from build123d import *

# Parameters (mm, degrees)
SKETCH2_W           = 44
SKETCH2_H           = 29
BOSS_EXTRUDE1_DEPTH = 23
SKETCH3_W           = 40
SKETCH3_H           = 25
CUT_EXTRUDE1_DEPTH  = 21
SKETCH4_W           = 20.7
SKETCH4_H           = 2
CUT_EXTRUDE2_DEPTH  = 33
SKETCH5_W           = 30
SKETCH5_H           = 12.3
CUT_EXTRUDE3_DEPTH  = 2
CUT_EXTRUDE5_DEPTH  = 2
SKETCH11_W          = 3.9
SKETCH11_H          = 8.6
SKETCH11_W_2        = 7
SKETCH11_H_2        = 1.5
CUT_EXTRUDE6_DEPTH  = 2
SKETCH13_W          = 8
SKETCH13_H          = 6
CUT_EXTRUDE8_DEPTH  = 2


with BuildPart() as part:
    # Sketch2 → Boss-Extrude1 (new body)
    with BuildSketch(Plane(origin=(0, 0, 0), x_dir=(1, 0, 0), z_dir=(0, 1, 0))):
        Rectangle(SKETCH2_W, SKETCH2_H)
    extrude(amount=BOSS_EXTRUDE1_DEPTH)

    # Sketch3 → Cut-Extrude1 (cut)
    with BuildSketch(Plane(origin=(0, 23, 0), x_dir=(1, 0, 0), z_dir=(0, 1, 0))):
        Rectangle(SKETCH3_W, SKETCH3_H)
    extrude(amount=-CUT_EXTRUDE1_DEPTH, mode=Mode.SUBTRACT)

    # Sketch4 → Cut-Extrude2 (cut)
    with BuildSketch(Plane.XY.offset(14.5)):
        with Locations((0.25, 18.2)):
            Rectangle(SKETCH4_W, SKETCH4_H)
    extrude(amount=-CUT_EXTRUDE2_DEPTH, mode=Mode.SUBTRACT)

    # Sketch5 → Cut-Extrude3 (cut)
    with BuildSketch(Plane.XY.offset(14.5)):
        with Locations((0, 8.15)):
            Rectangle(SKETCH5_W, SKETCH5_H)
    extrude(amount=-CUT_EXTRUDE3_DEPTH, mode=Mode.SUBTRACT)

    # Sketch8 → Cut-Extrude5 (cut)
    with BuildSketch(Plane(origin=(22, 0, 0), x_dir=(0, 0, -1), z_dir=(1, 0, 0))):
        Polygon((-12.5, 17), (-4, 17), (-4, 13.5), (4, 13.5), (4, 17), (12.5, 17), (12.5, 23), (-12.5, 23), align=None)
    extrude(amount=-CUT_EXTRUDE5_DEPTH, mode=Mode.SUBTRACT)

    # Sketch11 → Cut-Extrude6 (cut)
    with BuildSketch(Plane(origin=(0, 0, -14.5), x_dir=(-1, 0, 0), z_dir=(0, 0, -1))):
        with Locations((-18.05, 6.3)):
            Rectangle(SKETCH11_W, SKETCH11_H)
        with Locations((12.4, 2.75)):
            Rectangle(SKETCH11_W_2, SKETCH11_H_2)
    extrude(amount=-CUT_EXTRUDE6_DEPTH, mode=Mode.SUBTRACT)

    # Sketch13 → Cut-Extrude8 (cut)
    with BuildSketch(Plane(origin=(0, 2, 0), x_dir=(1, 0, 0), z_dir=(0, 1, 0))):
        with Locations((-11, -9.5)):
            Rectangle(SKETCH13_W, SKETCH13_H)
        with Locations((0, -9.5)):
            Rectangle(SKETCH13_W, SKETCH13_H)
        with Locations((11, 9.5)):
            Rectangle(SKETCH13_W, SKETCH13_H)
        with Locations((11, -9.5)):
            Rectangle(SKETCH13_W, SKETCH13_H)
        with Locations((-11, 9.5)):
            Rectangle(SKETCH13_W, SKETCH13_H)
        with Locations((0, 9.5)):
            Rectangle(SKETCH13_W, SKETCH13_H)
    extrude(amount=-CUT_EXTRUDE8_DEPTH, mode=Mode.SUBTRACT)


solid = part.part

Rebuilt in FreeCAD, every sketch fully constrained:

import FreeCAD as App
import Part
import Sketcher

V = App.Vector


def add_polygon(sketch, points):
    """Adds a closed chain of lines whose ends are joined by coincident constraints."""
    first, n = sketch.GeometryCount, len(points)
    for a, b in zip(points, points[1:] + points[:1]):
        sketch.addGeometry(Part.LineSegment(App.Vector(*a, 0), App.Vector(*b, 0)), False)
    for i in range(n):
        sketch.addConstraint(Sketcher.Constraint("Coincident", first + i, 2, first + (i + 1) % n, 1))

doc = App.newDocument("Part")
body = doc.addObject("PartDesign::Body", "Body")

sketch1 = body.newObject("Sketcher::SketchObject", "Sketch")
sketch1.AttachmentSupport = (doc.getObject("XZ_Plane"), [""])
sketch1.MapMode = "FlatFace"
add_polygon(sketch1, [(-22, -14), (-22, 14), (22, 14), (22, -14)])
sketch1.addConstraint(Sketcher.Constraint("Vertical", 0))
sketch1.addConstraint(Sketcher.Constraint("Horizontal", 1))
sketch1.addConstraint(Sketcher.Constraint("Vertical", 2))
sketch1.addConstraint(Sketcher.Constraint("Horizontal", 3))
sketch1.addConstraint(Sketcher.Constraint("Symmetric", 0, 2, 2, 2, -1, 1))
sketch1.addConstraint(Sketcher.Constraint("DistanceX", 1, 1, 1, 2, 44.0))
sketch1.addConstraint(Sketcher.Constraint("DistanceY", 0, 1, 0, 2, 29.0))
pad1 = body.newObject("PartDesign::Pad", "Pad")
pad1.Profile = sketch1
pad1.Length = 23
pad1.Reversed = True

sketch2 = body.newObject("Sketcher::SketchObject", "Sketch001")
sketch2.AttachmentSupport = (doc.getObject("XZ_Plane"), [""])
sketch2.MapMode = "FlatFace"
sketch2.AttachmentOffset = App.Placement(V(0, 0, -23), App.Rotation())
add_polygon(sketch2, [(-20, -12), (-20, 12), (20, 12), (20, -12)])
sketch2.addConstraint(Sketcher.Constraint("Vertical", 0))
sketch2.addConstraint(Sketcher.Constraint("Horizontal", 1))
sketch2.addConstraint(Sketcher.Constraint("Vertical", 2))
sketch2.addConstraint(Sketcher.Constraint("Horizontal", 3))
sketch2.addConstraint(Sketcher.Constraint("Symmetric", 0, 2, 2, 2, -1, 1))
sketch2.addConstraint(Sketcher.Constraint("DistanceX", 1, 1, 1, 2, 40.0))
sketch2.addConstraint(Sketcher.Constraint("DistanceY", 0, 1, 0, 2, 25.0))
pocket1 = body.newObject("PartDesign::Pocket", "Pocket")
pocket1.Profile = sketch2
pocket1.Length = 21
pocket1.Reversed = True

sketch3 = body.newObject("Sketcher::SketchObject", "Sketch002")
sketch3.AttachmentSupport = (doc.getObject("XY_Plane"), [""])
sketch3.MapMode = "FlatFace"
sketch3.AttachmentOffset = App.Placement(V(0, 0, 14.5), App.Rotation())
add_polygon(sketch3, [(-10.1, 19.2), (-10.1, 17.2), (10.6, 17.2), (10.6, 19.2)])
sketch3.addConstraint(Sketcher.Constraint("Vertical", 0))
sketch3.addConstraint(Sketcher.Constraint("Horizontal", 1))
sketch3.addConstraint(Sketcher.Constraint("Vertical", 2))
sketch3.addConstraint(Sketcher.Constraint("Horizontal", 3))
sketch3.addConstraint(Sketcher.Constraint("DistanceY", 0, 2, 0, 1, 2.0))
sketch3.addConstraint(Sketcher.Constraint("DistanceX", 1, 1, 1, 2, 20.7))
sketch3.addConstraint(Sketcher.Constraint("DistanceX", 0, 2, -1, 1, 10.1))
sketch3.addConstraint(Sketcher.Constraint("DistanceY", -1, 1, 0, 2, 17.2))
pocket2 = body.newObject("PartDesign::Pocket", "Pocket001")
pocket2.Profile = sketch3
pocket2.Length = 33

sketch4 = body.newObject("Sketcher::SketchObject", "Sketch003")
sketch4.AttachmentSupport = (doc.getObject("XY_Plane"), [""])
sketch4.MapMode = "FlatFace"
sketch4.AttachmentOffset = App.Placement(V(0, 0, 14.5), App.Rotation())
add_polygon(sketch4, [(-15, 14), (-15, 2), (15, 2), (15, 14)])
sketch4.addConstraint(Sketcher.Constraint("Vertical", 0))
sketch4.addConstraint(Sketcher.Constraint("Horizontal", 1))
sketch4.addConstraint(Sketcher.Constraint("Vertical", 2))
sketch4.addConstraint(Sketcher.Constraint("Horizontal", 3))
sketch4.addConstraint(Sketcher.Constraint("DistanceX", 1, 1, 1, 2, 30.0))
sketch4.addConstraint(Sketcher.Constraint("DistanceY", 0, 2, 0, 1, 12.3))
sketch4.addConstraint(Sketcher.Constraint("DistanceX", 0, 2, -1, 1, 15.0))
sketch4.addConstraint(Sketcher.Constraint("DistanceY", -1, 1, 0, 2, 2.0))
pocket3 = body.newObject("PartDesign::Pocket", "Pocket002")
pocket3.Profile = sketch4
pocket3.Length = 2

sketch5 = body.newObject("Sketcher::SketchObject", "Sketch004")
sketch5.AttachmentSupport = (doc.getObject("YZ_Plane"), [""])
sketch5.MapMode = "FlatFace"
sketch5.AttachmentOffset = App.Placement(V(0, 0, 22), App.Rotation())
add_polygon(sketch5, [(17, 12.5), (17, 4), (13.5, 4), (13.5, -4), (17, -4), (17, -12.5), (23, -12.5), (23, 12.5)])
sketch5.addConstraint(Sketcher.Constraint("Vertical", 0))
sketch5.addConstraint(Sketcher.Constraint("Horizontal", 1))
sketch5.addConstraint(Sketcher.Constraint("Vertical", 2))
sketch5.addConstraint(Sketcher.Constraint("Horizontal", 3))
sketch5.addConstraint(Sketcher.Constraint("Vertical", 4))
sketch5.addConstraint(Sketcher.Constraint("Horizontal", 5))
sketch5.addConstraint(Sketcher.Constraint("Vertical", 6))
sketch5.addConstraint(Sketcher.Constraint("Horizontal", 7))
sketch5.addConstraint(Sketcher.Constraint("Symmetric", 0, 2, 3, 2, -1))
sketch5.addConstraint(Sketcher.Constraint("Equal", 0, 4))
sketch5.addConstraint(Sketcher.Constraint("DistanceX", 5, 1, 5, 2, 6.0))
sketch5.addConstraint(Sketcher.Constraint("DistanceY", 2, 2, 2, 1, 8.0))
sketch5.addConstraint(Sketcher.Constraint("DistanceY", 6, 1, 6, 2, 25.0))
sketch5.addConstraint(Sketcher.Constraint("DistanceX", 1, 2, 1, 1, 3.5))
sketch5.addConstraint(Sketcher.Constraint("DistanceX", -1, 1, 0, 2, 17.0))
pocket4 = body.newObject("PartDesign::Pocket", "Pocket003")
pocket4.Profile = sketch5
pocket4.Length = 2

sketch6 = body.newObject("Sketcher::SketchObject", "Sketch005")
sketch6.AttachmentSupport = (doc.getObject("XY_Plane"), [""])
sketch6.MapMode = "FlatFace"
sketch6.AttachmentOffset = App.Placement(V(0, 0, -14.5), App.Rotation())
add_polygon(sketch6, [(20, 10.6), (20, 2), (16.1, 2), (16.1, 10.6)])
add_polygon(sketch6, [(-8.9, 3.5), (-8.9, 2), (-15.9, 2), (-15.9, 3.5)])
sketch6.addConstraint(Sketcher.Constraint("Vertical", 0))
sketch6.addConstraint(Sketcher.Constraint("Horizontal", 1))
sketch6.addConstraint(Sketcher.Constraint("Vertical", 2))
sketch6.addConstraint(Sketcher.Constraint("Horizontal", 3))
sketch6.addConstraint(Sketcher.Constraint("Vertical", 4))
sketch6.addConstraint(Sketcher.Constraint("Horizontal", 5))
sketch6.addConstraint(Sketcher.Constraint("Vertical", 6))
sketch6.addConstraint(Sketcher.Constraint("Horizontal", 7))
sketch6.addConstraint(Sketcher.Constraint("Horizontal", 1, 2, 4, 2))
sketch6.addConstraint(Sketcher.Constraint("DistanceX", 5, 2, 5, 1, 7.0))
sketch6.addConstraint(Sketcher.Constraint("DistanceX", 1, 2, 1, 1, 3.9))
sketch6.addConstraint(Sketcher.Constraint("DistanceY", 0, 2, 0, 1, 8.6))
sketch6.addConstraint(Sketcher.Constraint("DistanceY", 4, 2, 4, 1, 1.5))
sketch6.addConstraint(Sketcher.Constraint("DistanceX", -1, 1, 0, 2, 20.0))
sketch6.addConstraint(Sketcher.Constraint("DistanceY", -1, 1, 0, 2, 2.0))
sketch6.addConstraint(Sketcher.Constraint("DistanceX", 4, 2, 1, 2, 25.0))
pocket5 = body.newObject("PartDesign::Pocket", "Pocket004")
pocket5.Profile = sketch6
pocket5.Length = 2
pocket5.Reversed = True

sketch7 = body.newObject("Sketcher::SketchObject", "Sketch006")
sketch7.AttachmentSupport = (doc.getObject("XZ_Plane"), [""])
sketch7.MapMode = "FlatFace"
sketch7.AttachmentOffset = App.Placement(V(0, 0, -2), App.Rotation())
add_polygon(sketch7, [(-15, 6), (-15, 12), (-7, 12), (-7, 6)])
add_polygon(sketch7, [(-4, 6), (-4, 12), (4, 12), (4, 6)])
add_polygon(sketch7, [(7, -12), (7, -6), (15, -6), (15, -12)])
add_polygon(sketch7, [(7, 6), (7, 12), (15, 12), (15, 6)])
add_polygon(sketch7, [(-15, -12), (-15, -6), (-7, -6), (-7, -12)])
add_polygon(sketch7, [(-4, -12), (-4, -6), (4, -6), (4, -12)])
sketch7.addConstraint(Sketcher.Constraint("Vertical", 0))
sketch7.addConstraint(Sketcher.Constraint("Horizontal", 1))
sketch7.addConstraint(Sketcher.Constraint("Vertical", 2))
sketch7.addConstraint(Sketcher.Constraint("Horizontal", 3))
sketch7.addConstraint(Sketcher.Constraint("Vertical", 4))
sketch7.addConstraint(Sketcher.Constraint("Horizontal", 5))
sketch7.addConstraint(Sketcher.Constraint("Vertical", 6))
sketch7.addConstraint(Sketcher.Constraint("Horizontal", 7))
sketch7.addConstraint(Sketcher.Constraint("Vertical", 8))
sketch7.addConstraint(Sketcher.Constraint("Horizontal", 9))
sketch7.addConstraint(Sketcher.Constraint("Vertical", 10))
sketch7.addConstraint(Sketcher.Constraint("Horizontal", 11))
sketch7.addConstraint(Sketcher.Constraint("Vertical", 12))
sketch7.addConstraint(Sketcher.Constraint("Horizontal", 13))
sketch7.addConstraint(Sketcher.Constraint("Vertical", 14))
sketch7.addConstraint(Sketcher.Constraint("Horizontal", 15))
sketch7.addConstraint(Sketcher.Constraint("Vertical", 16))
sketch7.addConstraint(Sketcher.Constraint("Horizontal", 17))
sketch7.addConstraint(Sketcher.Constraint("Vertical", 18))
sketch7.addConstraint(Sketcher.Constraint("Horizontal", 19))
sketch7.addConstraint(Sketcher.Constraint("Vertical", 20))
sketch7.addConstraint(Sketcher.Constraint("Horizontal", 21))
sketch7.addConstraint(Sketcher.Constraint("Vertical", 22))
sketch7.addConstraint(Sketcher.Constraint("Horizontal", 23))
sketch7.addConstraint(Sketcher.Constraint("Symmetric", 2, 2, 8, 2, -1, 1))
sketch7.addConstraint(Sketcher.Constraint("Symmetric", 0, 2, 10, 2, -1, 1))
sketch7.addConstraint(Sketcher.Constraint("Symmetric", 14, 2, 16, 2, -1, 1))
sketch7.addConstraint(Sketcher.Constraint("Symmetric", 12, 2, 18, 2, -1, 1))
sketch7.addConstraint(Sketcher.Constraint("Symmetric", 6, 2, 20, 2, -1, 1))
sketch7.addConstraint(Sketcher.Constraint("Symmetric", 4, 2, 22, 2, -1, 1))
sketch7.addConstraint(Sketcher.Constraint("Symmetric", 1, 2, 12, 2, -2))
sketch7.addConstraint(Sketcher.Constraint("Symmetric", 3, 2, 14, 2, -2))
sketch7.addConstraint(Sketcher.Constraint("Horizontal", 1, 2, 4, 2))
sketch7.addConstraint(Sketcher.Constraint("Horizontal", 3, 2, 6, 2))
sketch7.addConstraint(Sketcher.Constraint("Vertical", 7, 2, 20, 2))
sketch7.addConstraint(Sketcher.Constraint("Equal", 3, 5))
sketch7.addConstraint(Sketcher.Constraint("DistanceX", 1, 1, 1, 2, 8.0))
sketch7.addConstraint(Sketcher.Constraint("DistanceY", 0, 1, 0, 2, 6.0))
sketch7.addConstraint(Sketcher.Constraint("DistanceX", 0, 2, -1, 1, 15.0))
sketch7.addConstraint(Sketcher.Constraint("DistanceY", 8, 2, 6, 2, 13.0))
pocket6 = body.newObject("PartDesign::Pocket", "Pocket005")
pocket6.Profile = sketch7
pocket6.Length = 2
pocket6.Reversed = True

doc.recompute()
